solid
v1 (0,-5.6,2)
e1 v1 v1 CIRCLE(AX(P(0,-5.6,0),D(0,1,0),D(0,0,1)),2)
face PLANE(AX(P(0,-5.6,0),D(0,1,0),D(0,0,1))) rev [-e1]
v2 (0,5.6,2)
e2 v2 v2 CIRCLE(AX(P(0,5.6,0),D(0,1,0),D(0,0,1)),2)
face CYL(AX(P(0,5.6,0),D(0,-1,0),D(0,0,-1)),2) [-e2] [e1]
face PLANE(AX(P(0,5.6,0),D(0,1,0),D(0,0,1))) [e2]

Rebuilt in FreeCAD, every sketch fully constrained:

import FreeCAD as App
import Part
import Sketcher
from FreeCAD import Vector
Q = App.Units.Quantity

doc = App.newDocument("Part")
body = doc.addObject("PartDesign::Body", "Body")

# Sketch on XZ plane
sketch1 = doc.addObject("Sketcher::SketchObject", "Sketch")
body.addObject(sketch1)
sketch1.AttachmentSupport = (doc.XZ_Plane, [""])
sketch1.MapMode = "FlatFace"
sketch1.addGeometry(Part.Circle(Vector(0, 0, 0), Vector(0, 0, 1), 2), False)
sketch1.addConstraint([
    Sketcher.Constraint("Coincident", 0, 3, -1, 1),
    Sketcher.Constraint("Diameter", 0, Q("4 mm")),
])
pad1 = doc.addObject("PartDesign::Pad", "Pad")
body.addObject(pad1)
pad1.Profile = sketch1
pad1.Length = 11.2
pad1.Midplane = True

doc.recompute()
